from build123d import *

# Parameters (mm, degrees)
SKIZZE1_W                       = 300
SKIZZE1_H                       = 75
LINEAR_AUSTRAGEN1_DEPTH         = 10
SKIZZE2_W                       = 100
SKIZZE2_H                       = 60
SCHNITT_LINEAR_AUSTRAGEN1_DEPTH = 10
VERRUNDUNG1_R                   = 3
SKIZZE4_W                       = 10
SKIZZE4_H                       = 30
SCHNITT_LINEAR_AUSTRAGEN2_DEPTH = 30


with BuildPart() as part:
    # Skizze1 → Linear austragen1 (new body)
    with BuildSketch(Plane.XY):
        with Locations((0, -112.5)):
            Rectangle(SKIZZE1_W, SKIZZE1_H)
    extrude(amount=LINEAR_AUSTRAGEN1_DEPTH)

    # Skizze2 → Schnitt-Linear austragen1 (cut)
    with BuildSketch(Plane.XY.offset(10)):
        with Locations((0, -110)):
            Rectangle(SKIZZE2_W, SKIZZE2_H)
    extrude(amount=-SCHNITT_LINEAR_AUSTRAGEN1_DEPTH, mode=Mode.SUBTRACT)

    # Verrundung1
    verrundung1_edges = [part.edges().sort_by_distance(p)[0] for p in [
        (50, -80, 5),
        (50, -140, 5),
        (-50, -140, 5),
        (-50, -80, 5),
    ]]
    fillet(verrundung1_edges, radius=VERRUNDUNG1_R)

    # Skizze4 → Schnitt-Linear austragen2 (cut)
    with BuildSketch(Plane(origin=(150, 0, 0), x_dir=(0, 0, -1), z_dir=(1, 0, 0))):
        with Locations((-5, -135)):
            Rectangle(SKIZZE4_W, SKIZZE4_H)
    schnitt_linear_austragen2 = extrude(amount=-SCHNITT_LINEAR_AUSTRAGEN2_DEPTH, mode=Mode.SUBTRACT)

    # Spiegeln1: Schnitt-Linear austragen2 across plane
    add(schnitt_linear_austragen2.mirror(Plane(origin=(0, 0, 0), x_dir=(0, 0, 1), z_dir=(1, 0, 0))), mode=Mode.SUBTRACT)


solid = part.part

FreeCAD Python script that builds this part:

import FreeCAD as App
import Part
import Sketcher
from FreeCAD import Vector
Q = App.Units.Quantity


def edges_at(feature, points):
    """Names of the edges that pass closest to the given points."""
    edges = feature.Shape.Edges
    near = lambda p: min(range(len(edges)), key=lambda i: edges[i].distToShape(Part.Vertex(*p))[0])
    return sorted({f"Edge{near(p) + 1}" for p in points})

doc = App.newDocument("Part")
params = doc.addObject("Spreadsheet::Sheet", "Params")
for row, (alias, value) in enumerate([
    ("sketch1_width", "300 mm"),
    ("sketch1_height", "75 mm"),
    ("pad1_length", "10 mm"),
    ("sketch2_width", "100 mm"),
    ("sketch2_height", "60 mm"),
    ("pocket1_length", "10 mm"),
    ("fillet_radius", "3 mm"),
    ("sketch3_width", "30 mm"),
    ("sketch3_height", "10 mm"),
    ("pocket2_length", "30 mm"),
], start=1):
    params.set(f"A{row}", alias)
    params.set(f"B{row}", "=" + value)
    params.setAlias(f"B{row}", alias)

body = doc.addObject("PartDesign::Body", "Body")

sketch1 = body.newObject("Sketcher::SketchObject", "Sketch")
sketch1.AttachmentSupport = (doc.getObject("XY_Plane"), [""])
sketch1.MapMode = "FlatFace"
sketch1.addGeometry(Part.LineSegment(Vector(-150, -75, 0), Vector(-150, -150, 0)), False)
sketch1.addGeometry(Part.LineSegment(Vector(-150, -150, 0), Vector(150, -150, 0)), False)
sketch1.addGeometry(Part.LineSegment(Vector(150, -150, 0), Vector(150, -75, 0)), False)
sketch1.addGeometry(Part.LineSegment(Vector(150, -75, 0), Vector(-150, -75, 0)), False)
sketch1.addConstraint(Sketcher.Constraint("Coincident", 0, 2, 1, 1))
sketch1.addConstraint(Sketcher.Constraint("Coincident", 1, 2, 2, 1))
sketch1.addConstraint(Sketcher.Constraint("Coincident", 2, 2, 3, 1))
sketch1.addConstraint(Sketcher.Constraint("Coincident", 3, 2, 0, 1))
sketch1.addConstraint(Sketcher.Constraint("Vertical", 0))
sketch1.addConstraint(Sketcher.Constraint("Horizontal", 1))
sketch1.addConstraint(Sketcher.Constraint("Vertical", 2))
sketch1.addConstraint(Sketcher.Constraint("Horizontal", 3))
sketch1.addConstraint(Sketcher.Constraint("DistanceX", 1, 1, 1, 2, Q("300 mm")))
sketch1.addConstraint(Sketcher.Constraint("DistanceY", 0, 2, 0, 1, Q("75 mm")))
sketch1.addConstraint(Sketcher.Constraint("DistanceX", 0, 2, -1, 1, Q("150 mm")))
sketch1.addConstraint(Sketcher.Constraint("DistanceY", 0, 2, -1, 1, Q("150 mm")))
sketch1.setExpression("Constraints[8]", "Params.sketch1_width")
sketch1.setExpression("Constraints[9]", "Params.sketch1_height")
pad1 = body.newObject("PartDesign::Pad", "Pad")
pad1.Profile = sketch1
pad1.setExpression("Length", "Params.pad1_length")

sketch2 = body.newObject("Sketcher::SketchObject", "Sketch001")
sketch2.AttachmentSupport = (doc.getObject("XY_Plane"), [""])
sketch2.MapMode = "FlatFace"
sketch2.AttachmentOffset = App.Placement(Vector(0, 0, 10), App.Rotation())
sketch2.addGeometry(Part.LineSegment(Vector(-50, -80, 0), Vector(-50, -140, 0)), False)
sketch2.addGeometry(Part.LineSegment(Vector(-50, -140, 0), Vector(50, -140, 0)), False)
sketch2.addGeometry(Part.LineSegment(Vector(50, -140, 0), Vector(50, -80, 0)), False)
sketch2.addGeometry(Part.LineSegment(Vector(50, -80, 0), Vector(-50, -80, 0)), False)
sketch2.addConstraint(Sketcher.Constraint("Coincident", 0, 2, 1, 1))
sketch2.addConstraint(Sketcher.Constraint("Coincident", 1, 2, 2, 1))
sketch2.addConstraint(Sketcher.Constraint("Coincident", 2, 2, 3, 1))
sketch2.addConstraint(Sketcher.Constraint("Coincident", 3, 2, 0, 1))
sketch2.addConstraint(Sketcher.Constraint("Vertical", 0))
sketch2.addConstraint(Sketcher.Constraint("Horizontal", 1))
sketch2.addConstraint(Sketcher.Constraint("Vertical", 2))
sketch2.addConstraint(Sketcher.Constraint("Horizontal", 3))
sketch2.addConstraint(Sketcher.Constraint("DistanceX", 1, 1, 1, 2, Q("100 mm")))
sketch2.addConstraint(Sketcher.Constraint("DistanceY", 0, 2, 0, 1, Q("60 mm")))
sketch2.addConstraint(Sketcher.Constraint("DistanceX", 0, 2, -1, 1, Q("50 mm")))
sketch2.addConstraint(Sketcher.Constraint("DistanceY", 0, 2, -1, 1, Q("140 mm")))
sketch2.setExpression("Constraints[8]", "Params.sketch2_width")
sketch2.setExpression("Constraints[9]", "Params.sketch2_height")
pocket1 = body.newObject("PartDesign::Pocket", "Pocket")
pocket1.Profile = sketch2
pocket1.setExpression("Length", "Params.pocket1_length")
doc.recompute()

fillet = body.newObject("PartDesign::Fillet", "Fillet")
fillet.Base = (pocket1, edges_at(pocket1, [
    (50, -80, 5),
    (50, -140, 5),
    (-50, -140, 5),
    (-50, -80, 5),
]))
fillet.setExpression("Radius", "Params.fillet_radius")

sketch3 = body.newObject("Sketcher::SketchObject", "Sketch002")
sketch3.AttachmentSupport = (doc.getObject("YZ_Plane"), [""])
sketch3.MapMode = "FlatFace"
sketch3.AttachmentOffset = App.Placement(Vector(0, 0, 150), App.Rotation())
sketch3.addGeometry(Part.LineSegment(Vector(-120, 10, 0), Vector(-150, 10, 0)), False)
sketch3.addGeometry(Part.LineSegment(Vector(-150, 10, 0), Vector(-150, 0, 0)), False)
sketch3.addGeometry(Part.LineSegment(Vector(-150, 0, 0), Vector(-120, 0, 0)), False)
sketch3.addGeometry(Part.LineSegment(Vector(-120, 0, 0), Vector(-120, 10, 0)), False)
sketch3.addConstraint(Sketcher.Constraint("Coincident", 0, 2, 1, 1))
sketch3.addConstraint(Sketcher.Constraint("Coincident", 1, 2, 2, 1))
sketch3.addConstraint(Sketcher.Constraint("Coincident", 2, 2, 3, 1))
sketch3.addConstraint(Sketcher.Constraint("Coincident", 3, 2, 0, 1))
sketch3.addConstraint(Sketcher.Constraint("Horizontal", 0))
sketch3.addConstraint(Sketcher.Constraint("Vertical", 1))
sketch3.addConstraint(Sketcher.Constraint("Horizontal", 2))
sketch3.addConstraint(Sketcher.Constraint("Vertical", 3))
sketch3.addConstraint(Sketcher.Constraint("PointOnObject", 1, 2, -1))
sketch3.addConstraint(Sketcher.Constraint("DistanceX", 0, 2, 0, 1, Q("30 mm")))
sketch3.addConstraint(Sketcher.Constraint("DistanceY", 1, 2, 1, 1, Q("10 mm")))
sketch3.addConstraint(Sketcher.Constraint("DistanceX", 0, 2, -1, 1, Q("150 mm")))
sketch3.setExpression("Constraints[9]", "Params.sketch3_width")
sketch3.setExpression("Constraints[10]", "Params.sketch3_height")
pocket2 = body.newObject("PartDesign::Pocket", "Pocket001")
pocket2.Profile = sketch3
pocket2.setExpression("Length", "Params.pocket2_length")
doc.recompute()

mirrored = body.newObject("PartDesign::Mirrored", "Mirrored")
mirrored.Originals = [pocket2]
mirrored.MirrorPlane = (doc.getObject("YZ_Plane"), [""])
body.Tip = mirrored

doc.recompute()
